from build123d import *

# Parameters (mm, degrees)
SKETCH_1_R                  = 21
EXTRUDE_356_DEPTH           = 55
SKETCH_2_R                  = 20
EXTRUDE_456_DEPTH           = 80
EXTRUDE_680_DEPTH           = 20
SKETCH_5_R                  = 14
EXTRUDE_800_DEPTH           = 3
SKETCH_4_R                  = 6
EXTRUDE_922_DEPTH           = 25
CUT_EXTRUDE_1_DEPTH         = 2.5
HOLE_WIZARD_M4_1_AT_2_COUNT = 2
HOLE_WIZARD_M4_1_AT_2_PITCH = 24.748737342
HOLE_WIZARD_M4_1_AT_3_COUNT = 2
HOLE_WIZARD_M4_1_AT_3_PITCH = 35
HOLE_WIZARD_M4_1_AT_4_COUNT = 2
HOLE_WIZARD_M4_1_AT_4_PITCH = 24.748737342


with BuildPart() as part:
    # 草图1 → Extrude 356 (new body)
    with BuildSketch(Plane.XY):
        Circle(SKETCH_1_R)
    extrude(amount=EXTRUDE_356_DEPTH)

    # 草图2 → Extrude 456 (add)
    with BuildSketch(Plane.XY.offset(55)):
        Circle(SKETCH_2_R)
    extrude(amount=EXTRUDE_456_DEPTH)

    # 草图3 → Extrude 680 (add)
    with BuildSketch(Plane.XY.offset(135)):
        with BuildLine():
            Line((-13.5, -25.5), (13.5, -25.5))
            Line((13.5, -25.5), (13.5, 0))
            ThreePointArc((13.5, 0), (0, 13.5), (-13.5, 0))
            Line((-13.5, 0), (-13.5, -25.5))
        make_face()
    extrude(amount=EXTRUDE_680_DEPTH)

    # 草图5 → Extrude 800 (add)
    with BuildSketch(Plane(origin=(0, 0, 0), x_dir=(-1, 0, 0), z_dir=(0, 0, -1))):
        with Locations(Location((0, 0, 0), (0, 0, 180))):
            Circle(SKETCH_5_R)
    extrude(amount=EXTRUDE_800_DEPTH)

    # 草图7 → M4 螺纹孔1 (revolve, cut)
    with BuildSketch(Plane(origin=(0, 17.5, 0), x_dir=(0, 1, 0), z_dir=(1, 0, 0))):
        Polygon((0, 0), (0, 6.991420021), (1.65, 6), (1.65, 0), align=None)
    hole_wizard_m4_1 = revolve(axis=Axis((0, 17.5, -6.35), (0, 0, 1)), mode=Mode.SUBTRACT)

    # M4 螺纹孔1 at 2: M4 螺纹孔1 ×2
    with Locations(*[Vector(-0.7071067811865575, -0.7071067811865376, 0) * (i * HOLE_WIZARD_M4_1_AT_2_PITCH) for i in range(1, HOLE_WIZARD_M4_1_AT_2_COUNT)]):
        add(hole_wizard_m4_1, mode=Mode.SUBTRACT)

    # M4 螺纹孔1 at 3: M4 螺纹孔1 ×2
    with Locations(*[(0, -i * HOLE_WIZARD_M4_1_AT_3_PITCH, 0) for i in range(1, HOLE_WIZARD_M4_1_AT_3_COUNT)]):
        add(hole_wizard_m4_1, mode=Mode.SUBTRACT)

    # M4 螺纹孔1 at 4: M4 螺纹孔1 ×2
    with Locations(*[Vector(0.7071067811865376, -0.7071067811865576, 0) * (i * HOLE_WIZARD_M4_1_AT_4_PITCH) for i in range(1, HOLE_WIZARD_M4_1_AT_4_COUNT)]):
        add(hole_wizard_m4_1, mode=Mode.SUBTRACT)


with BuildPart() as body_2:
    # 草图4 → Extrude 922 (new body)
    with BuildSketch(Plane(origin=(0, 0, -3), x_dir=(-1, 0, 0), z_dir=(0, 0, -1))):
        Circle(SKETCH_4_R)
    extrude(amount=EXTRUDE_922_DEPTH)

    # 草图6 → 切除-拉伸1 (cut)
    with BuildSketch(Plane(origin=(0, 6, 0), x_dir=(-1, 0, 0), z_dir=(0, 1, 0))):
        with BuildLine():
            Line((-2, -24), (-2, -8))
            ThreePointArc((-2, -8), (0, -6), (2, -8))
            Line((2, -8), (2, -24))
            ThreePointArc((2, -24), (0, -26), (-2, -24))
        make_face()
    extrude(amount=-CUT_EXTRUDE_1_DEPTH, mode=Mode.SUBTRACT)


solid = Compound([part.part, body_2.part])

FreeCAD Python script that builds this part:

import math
import FreeCAD as App
import Part
import Sketcher
from FreeCAD import Vector
Q = App.Units.Quantity


def add_polygon(sketch, points):
    """Adds a closed chain of lines whose ends are joined by coincident constraints."""
    first, n = sketch.GeometryCount, len(points)
    for a, b in zip(points, points[1:] + points[:1]):
        sketch.addGeometry(Part.LineSegment(App.Vector(*a, 0), App.Vector(*b, 0)), False)
    for i in range(n):
        sketch.addConstraint(Sketcher.Constraint("Coincident", first + i, 2, first + (i + 1) % n, 1))

doc = App.newDocument("Part")
body = doc.addObject("PartDesign::Body", "Body")

# Sketch on XY plane
sketch1 = doc.addObject("Sketcher::SketchObject", "Sketch")
body.addObject(sketch1)
sketch1.AttachmentSupport = (doc.XY_Plane, [""])
sketch1.MapMode = "FlatFace"
sketch1.addGeometry(Part.Circle(Vector(0, 0, 0), Vector(0, 0, 1), 21), False)
sketch1.addConstraint(Sketcher.Constraint("Coincident", 0, 3, -1, 1))
sketch1.addConstraint(Sketcher.Constraint("Diameter", 0, 42.0))
pad1 = doc.addObject("PartDesign::Pad", "Pad")
body.addObject(pad1)
pad1.Profile = sketch1
pad1.Length = 55

# Sketch on XY plane
sketch2 = doc.addObject("Sketcher::SketchObject", "Sketch001")
body.addObject(sketch2)
sketch2.AttachmentSupport = (doc.XY_Plane, [""])
sketch2.MapMode = "FlatFace"
sketch2.AttachmentOffset = App.Placement(Vector(0, 0, 55), App.Rotation())
sketch2.addGeometry(Part.Circle(Vector(0, 0, 0), Vector(0, 0, 1), 20), False)
sketch2.addConstraint(Sketcher.Constraint("Coincident", 0, 3, -1, 1))
sketch2.addConstraint(Sketcher.Constraint("Diameter", 0, 40.0))
pad2 = doc.addObject("PartDesign::Pad", "Pad001")
body.addObject(pad2)
pad2.Profile = sketch2
pad2.Length = 80

# Sketch on XY plane
sketch3 = doc.addObject("Sketcher::SketchObject", "Sketch002")
body.addObject(sketch3)
sketch3.AttachmentSupport = (doc.XY_Plane, [""])
sketch3.MapMode = "FlatFace"
sketch3.AttachmentOffset = App.Placement(Vector(0, 0, 135), App.Rotation())
sketch3.addGeometry(Part.LineSegment(Vector(-14, -26, 0), Vector(14, -26, 0)), False)
sketch3.addGeometry(Part.LineSegment(Vector(14, -26, 0), Vector(14, 0, 0)), False)
sketch3.addGeometry(Part.ArcOfCircle(Part.Circle(Vector(0, 0, 0), Vector(0, 0, 1), 14), math.radians(0), math.radians(180)), False)
sketch3.addGeometry(Part.LineSegment(Vector(-14, 0, 0), Vector(-14, -26, 0)), False)
sketch3.addConstraint(Sketcher.Constraint("Coincident", 0, 2, 1, 1))
sketch3.addConstraint(Sketcher.Constraint("Tangent", 1, 2, 2, 1))
sketch3.addConstraint(Sketcher.Constraint("Tangent", 2, 2, 3, 1))
sketch3.addConstraint(Sketcher.Constraint("Coincident", 3, 2, 0, 1))
sketch3.addConstraint(Sketcher.Constraint("Horizontal", 0))
sketch3.addConstraint(Sketcher.Constraint("Vertical", 1))
sketch3.addConstraint(Sketcher.Constraint("Vertical", 3))
sketch3.addConstraint(Sketcher.Constraint("Coincident", 2, 3, -1, 1))
sketch3.addConstraint(Sketcher.Constraint("Radius", 2, 13.5))
sketch3.addConstraint(Sketcher.Constraint("DistanceY", 1, 1, 1, 2, 25.5))
pad3 = doc.addObject("PartDesign::Pad", "Pad002")
body.addObject(pad3)
pad3.Profile = sketch3
pad3.Length = 20

# Sketch on XY plane
sketch4 = doc.addObject("Sketcher::SketchObject", "Sketch003")
body.addObject(sketch4)
sketch4.AttachmentSupport = (doc.XY_Plane, [""])
sketch4.MapMode = "FlatFace"
sketch4.addGeometry(Part.Circle(Vector(0, 0, 0), Vector(0, 0, 1), 14), False)
sketch4.addConstraint(Sketcher.Constraint("Coincident", 0, 3, -1, 1))
sketch4.addConstraint(Sketcher.Constraint("Diameter", 0, 28.0))
pad4 = doc.addObject("PartDesign::Pad", "Pad003")
body.addObject(pad4)
pad4.Profile = sketch4
pad4.Length = 3
pad4.Reversed = True

# Sketch on YZ plane
sketch5 = doc.addObject("Sketcher::SketchObject", "Sketch004")
body.addObject(sketch5)
sketch5.AttachmentSupport = (doc.YZ_Plane, [""])
sketch5.MapMode = "FlatFace"
add_polygon(sketch5, [(17.5, 7), (17.5, 0), (19.1, 0), (19.1, 6)])  # lines 0-3
sketch5.addGeometry(Part.LineSegment(Vector(17.5, 0, 0), Vector(17.5, 7, 0)), True)  # axis
sketch5.addConstraint(Sketcher.Constraint("Vertical", 0))
sketch5.addConstraint(Sketcher.Constraint("Horizontal", 1))
sketch5.addConstraint(Sketcher.Constraint("Vertical", 2))
sketch5.addConstraint(Sketcher.Constraint("Vertical", 4))
sketch5.addConstraint(Sketcher.Constraint("Coincident", 4, 1, 0, 2))
sketch5.addConstraint(Sketcher.Constraint("PointOnObject", 0, 2, -1))
sketch5.addConstraint(Sketcher.Constraint("Equal", 0, 4))
sketch5.addConstraint(Sketcher.Constraint("DistanceY", 2, 1, 2, 2, 6.0))
sketch5.addConstraint(Sketcher.Constraint("Angle", 3, Q("149 deg")))
sketch5.addConstraint(Sketcher.Constraint("DistanceX", 1, 1, 1, 2, 1.65))
sketch5.addConstraint(Sketcher.Constraint("DistanceX", -1, 1, 0, 2, 17.5))
groove = doc.addObject("PartDesign::Groove", "Groove")
body.addObject(groove)
groove.Profile = sketch5
groove.ReferenceAxis = (sketch5, ["Axis0"])
groove.Angle = 360
doc.recompute()

datumline = doc.addObject("PartDesign::Line", "DatumLine")
body.addObject(datumline)
datumline.Placement = App.Placement(Vector(0, 0, 0), App.Rotation(Vector(0, 0, 1), Vector(-0.707106781, -0.707106781, 0)))
linearpattern = doc.addObject("PartDesign::LinearPattern", "LinearPattern")
body.addObject(linearpattern)
linearpattern.Originals = [groove]
linearpattern.Direction = (datumline, [""])
linearpattern.Mode = "offset"
linearpattern.Offset = 24.748737
linearpattern.Occurrences = 2
body.Tip = linearpattern
doc.recompute()

linearpattern2 = doc.addObject("PartDesign::LinearPattern", "LinearPattern001")
body.addObject(linearpattern2)
linearpattern2.Originals = [groove]
linearpattern2.Direction = (doc.Y_Axis, [""])
linearpattern2.Mode = "offset"
linearpattern2.Offset = 35
linearpattern2.Occurrences = 2
linearpattern2.Reversed = True
body.Tip = linearpattern2
doc.recompute()

datumline2 = doc.addObject("PartDesign::Line", "DatumLine001")
body.addObject(datumline2)
datumline2.Placement = App.Placement(Vector(0, 0, 0), App.Rotation(Vector(0, 0, 1), Vector(0.707106781, -0.707106781, 0)))
linearpattern3 = doc.addObject("PartDesign::LinearPattern", "LinearPattern002")
body.addObject(linearpattern3)
linearpattern3.Originals = [groove]
linearpattern3.Direction = (datumline2, [""])
linearpattern3.Mode = "offset"
linearpattern3.Offset = 24.748737
linearpattern3.Occurrences = 2
body.Tip = linearpattern3
body2 = doc.addObject("PartDesign::Body", "Body001")

# Sketch on XY plane
sketch6 = doc.addObject("Sketcher::SketchObject", "Sketch005")
body2.addObject(sketch6)
sketch6.AttachmentSupport = (doc.getObject("XY_Plane001"), [""])
sketch6.MapMode = "FlatFace"
sketch6.AttachmentOffset = App.Placement(Vector(0, 0, -3), App.Rotation())
sketch6.addGeometry(Part.Circle(Vector(0, 0, 0), Vector(0, 0, 1), 6), False)
sketch6.addConstraint(Sketcher.Constraint("Coincident", 0, 3, -1, 1))
sketch6.addConstraint(Sketcher.Constraint("Diameter", 0, 12.0))
pad5 = doc.addObject("PartDesign::Pad", "Pad004")
body2.addObject(pad5)
pad5.Profile = sketch6
pad5.Length = 25
pad5.Reversed = True

# Sketch on XZ plane
sketch7 = doc.addObject("Sketcher::SketchObject", "Sketch006")
body2.addObject(sketch7)
sketch7.AttachmentSupport = (doc.getObject("XZ_Plane001"), [""])
sketch7.MapMode = "FlatFace"
sketch7.AttachmentOffset = App.Placement(Vector(0, 0, -6), App.Rotation())
sketch7.addGeometry(Part.LineSegment(Vector(2, -8, 0), Vector(2, -24, 0)), False)
sketch7.addGeometry(Part.ArcOfCircle(Part.Circle(Vector(0, -24, 0), Vector(0, 0, 1), 2), math.radians(180), math.radians(360)), False)
sketch7.addGeometry(Part.LineSegment(Vector(-2, -24, 0), Vector(-2, -8, 0)), False)
sketch7.addGeometry(Part.ArcOfCircle(Part.Circle(Vector(0, -8, 0), Vector(0, 0, 1), 2), math.radians(0), math.radians(180)), False)
sketch7.addConstraint(Sketcher.Constraint("Tangent", 0, 2, 1, 2))
sketch7.addConstraint(Sketcher.Constraint("Tangent", 1, 1, 2, 1))
sketch7.addConstraint(Sketcher.Constraint("Tangent", 2, 2, 3, 2))
sketch7.addConstraint(Sketcher.Constraint("Tangent", 3, 1, 0, 1))
sketch7.addConstraint(Sketcher.Constraint("Vertical", 0))
sketch7.addConstraint(Sketcher.Constraint("Vertical", 2))
sketch7.addConstraint(Sketcher.Constraint("PointOnObject", 1, 3, -2))
sketch7.addConstraint(Sketcher.Constraint("Radius", 1, 2.0))
sketch7.addConstraint(Sketcher.Constraint("DistanceY", 0, 2, 0, 1, 16.0))
sketch7.addConstraint(Sketcher.Constraint("DistanceY", 1, 3, -1, 1, 24.0))
pocket1 = doc.addObject("PartDesign::Pocket", "Pocket")
body2.addObject(pocket1)
pocket1.Profile = sketch7
pocket1.Length = 2.5
pocket1.Reversed = True

doc.recompute()
